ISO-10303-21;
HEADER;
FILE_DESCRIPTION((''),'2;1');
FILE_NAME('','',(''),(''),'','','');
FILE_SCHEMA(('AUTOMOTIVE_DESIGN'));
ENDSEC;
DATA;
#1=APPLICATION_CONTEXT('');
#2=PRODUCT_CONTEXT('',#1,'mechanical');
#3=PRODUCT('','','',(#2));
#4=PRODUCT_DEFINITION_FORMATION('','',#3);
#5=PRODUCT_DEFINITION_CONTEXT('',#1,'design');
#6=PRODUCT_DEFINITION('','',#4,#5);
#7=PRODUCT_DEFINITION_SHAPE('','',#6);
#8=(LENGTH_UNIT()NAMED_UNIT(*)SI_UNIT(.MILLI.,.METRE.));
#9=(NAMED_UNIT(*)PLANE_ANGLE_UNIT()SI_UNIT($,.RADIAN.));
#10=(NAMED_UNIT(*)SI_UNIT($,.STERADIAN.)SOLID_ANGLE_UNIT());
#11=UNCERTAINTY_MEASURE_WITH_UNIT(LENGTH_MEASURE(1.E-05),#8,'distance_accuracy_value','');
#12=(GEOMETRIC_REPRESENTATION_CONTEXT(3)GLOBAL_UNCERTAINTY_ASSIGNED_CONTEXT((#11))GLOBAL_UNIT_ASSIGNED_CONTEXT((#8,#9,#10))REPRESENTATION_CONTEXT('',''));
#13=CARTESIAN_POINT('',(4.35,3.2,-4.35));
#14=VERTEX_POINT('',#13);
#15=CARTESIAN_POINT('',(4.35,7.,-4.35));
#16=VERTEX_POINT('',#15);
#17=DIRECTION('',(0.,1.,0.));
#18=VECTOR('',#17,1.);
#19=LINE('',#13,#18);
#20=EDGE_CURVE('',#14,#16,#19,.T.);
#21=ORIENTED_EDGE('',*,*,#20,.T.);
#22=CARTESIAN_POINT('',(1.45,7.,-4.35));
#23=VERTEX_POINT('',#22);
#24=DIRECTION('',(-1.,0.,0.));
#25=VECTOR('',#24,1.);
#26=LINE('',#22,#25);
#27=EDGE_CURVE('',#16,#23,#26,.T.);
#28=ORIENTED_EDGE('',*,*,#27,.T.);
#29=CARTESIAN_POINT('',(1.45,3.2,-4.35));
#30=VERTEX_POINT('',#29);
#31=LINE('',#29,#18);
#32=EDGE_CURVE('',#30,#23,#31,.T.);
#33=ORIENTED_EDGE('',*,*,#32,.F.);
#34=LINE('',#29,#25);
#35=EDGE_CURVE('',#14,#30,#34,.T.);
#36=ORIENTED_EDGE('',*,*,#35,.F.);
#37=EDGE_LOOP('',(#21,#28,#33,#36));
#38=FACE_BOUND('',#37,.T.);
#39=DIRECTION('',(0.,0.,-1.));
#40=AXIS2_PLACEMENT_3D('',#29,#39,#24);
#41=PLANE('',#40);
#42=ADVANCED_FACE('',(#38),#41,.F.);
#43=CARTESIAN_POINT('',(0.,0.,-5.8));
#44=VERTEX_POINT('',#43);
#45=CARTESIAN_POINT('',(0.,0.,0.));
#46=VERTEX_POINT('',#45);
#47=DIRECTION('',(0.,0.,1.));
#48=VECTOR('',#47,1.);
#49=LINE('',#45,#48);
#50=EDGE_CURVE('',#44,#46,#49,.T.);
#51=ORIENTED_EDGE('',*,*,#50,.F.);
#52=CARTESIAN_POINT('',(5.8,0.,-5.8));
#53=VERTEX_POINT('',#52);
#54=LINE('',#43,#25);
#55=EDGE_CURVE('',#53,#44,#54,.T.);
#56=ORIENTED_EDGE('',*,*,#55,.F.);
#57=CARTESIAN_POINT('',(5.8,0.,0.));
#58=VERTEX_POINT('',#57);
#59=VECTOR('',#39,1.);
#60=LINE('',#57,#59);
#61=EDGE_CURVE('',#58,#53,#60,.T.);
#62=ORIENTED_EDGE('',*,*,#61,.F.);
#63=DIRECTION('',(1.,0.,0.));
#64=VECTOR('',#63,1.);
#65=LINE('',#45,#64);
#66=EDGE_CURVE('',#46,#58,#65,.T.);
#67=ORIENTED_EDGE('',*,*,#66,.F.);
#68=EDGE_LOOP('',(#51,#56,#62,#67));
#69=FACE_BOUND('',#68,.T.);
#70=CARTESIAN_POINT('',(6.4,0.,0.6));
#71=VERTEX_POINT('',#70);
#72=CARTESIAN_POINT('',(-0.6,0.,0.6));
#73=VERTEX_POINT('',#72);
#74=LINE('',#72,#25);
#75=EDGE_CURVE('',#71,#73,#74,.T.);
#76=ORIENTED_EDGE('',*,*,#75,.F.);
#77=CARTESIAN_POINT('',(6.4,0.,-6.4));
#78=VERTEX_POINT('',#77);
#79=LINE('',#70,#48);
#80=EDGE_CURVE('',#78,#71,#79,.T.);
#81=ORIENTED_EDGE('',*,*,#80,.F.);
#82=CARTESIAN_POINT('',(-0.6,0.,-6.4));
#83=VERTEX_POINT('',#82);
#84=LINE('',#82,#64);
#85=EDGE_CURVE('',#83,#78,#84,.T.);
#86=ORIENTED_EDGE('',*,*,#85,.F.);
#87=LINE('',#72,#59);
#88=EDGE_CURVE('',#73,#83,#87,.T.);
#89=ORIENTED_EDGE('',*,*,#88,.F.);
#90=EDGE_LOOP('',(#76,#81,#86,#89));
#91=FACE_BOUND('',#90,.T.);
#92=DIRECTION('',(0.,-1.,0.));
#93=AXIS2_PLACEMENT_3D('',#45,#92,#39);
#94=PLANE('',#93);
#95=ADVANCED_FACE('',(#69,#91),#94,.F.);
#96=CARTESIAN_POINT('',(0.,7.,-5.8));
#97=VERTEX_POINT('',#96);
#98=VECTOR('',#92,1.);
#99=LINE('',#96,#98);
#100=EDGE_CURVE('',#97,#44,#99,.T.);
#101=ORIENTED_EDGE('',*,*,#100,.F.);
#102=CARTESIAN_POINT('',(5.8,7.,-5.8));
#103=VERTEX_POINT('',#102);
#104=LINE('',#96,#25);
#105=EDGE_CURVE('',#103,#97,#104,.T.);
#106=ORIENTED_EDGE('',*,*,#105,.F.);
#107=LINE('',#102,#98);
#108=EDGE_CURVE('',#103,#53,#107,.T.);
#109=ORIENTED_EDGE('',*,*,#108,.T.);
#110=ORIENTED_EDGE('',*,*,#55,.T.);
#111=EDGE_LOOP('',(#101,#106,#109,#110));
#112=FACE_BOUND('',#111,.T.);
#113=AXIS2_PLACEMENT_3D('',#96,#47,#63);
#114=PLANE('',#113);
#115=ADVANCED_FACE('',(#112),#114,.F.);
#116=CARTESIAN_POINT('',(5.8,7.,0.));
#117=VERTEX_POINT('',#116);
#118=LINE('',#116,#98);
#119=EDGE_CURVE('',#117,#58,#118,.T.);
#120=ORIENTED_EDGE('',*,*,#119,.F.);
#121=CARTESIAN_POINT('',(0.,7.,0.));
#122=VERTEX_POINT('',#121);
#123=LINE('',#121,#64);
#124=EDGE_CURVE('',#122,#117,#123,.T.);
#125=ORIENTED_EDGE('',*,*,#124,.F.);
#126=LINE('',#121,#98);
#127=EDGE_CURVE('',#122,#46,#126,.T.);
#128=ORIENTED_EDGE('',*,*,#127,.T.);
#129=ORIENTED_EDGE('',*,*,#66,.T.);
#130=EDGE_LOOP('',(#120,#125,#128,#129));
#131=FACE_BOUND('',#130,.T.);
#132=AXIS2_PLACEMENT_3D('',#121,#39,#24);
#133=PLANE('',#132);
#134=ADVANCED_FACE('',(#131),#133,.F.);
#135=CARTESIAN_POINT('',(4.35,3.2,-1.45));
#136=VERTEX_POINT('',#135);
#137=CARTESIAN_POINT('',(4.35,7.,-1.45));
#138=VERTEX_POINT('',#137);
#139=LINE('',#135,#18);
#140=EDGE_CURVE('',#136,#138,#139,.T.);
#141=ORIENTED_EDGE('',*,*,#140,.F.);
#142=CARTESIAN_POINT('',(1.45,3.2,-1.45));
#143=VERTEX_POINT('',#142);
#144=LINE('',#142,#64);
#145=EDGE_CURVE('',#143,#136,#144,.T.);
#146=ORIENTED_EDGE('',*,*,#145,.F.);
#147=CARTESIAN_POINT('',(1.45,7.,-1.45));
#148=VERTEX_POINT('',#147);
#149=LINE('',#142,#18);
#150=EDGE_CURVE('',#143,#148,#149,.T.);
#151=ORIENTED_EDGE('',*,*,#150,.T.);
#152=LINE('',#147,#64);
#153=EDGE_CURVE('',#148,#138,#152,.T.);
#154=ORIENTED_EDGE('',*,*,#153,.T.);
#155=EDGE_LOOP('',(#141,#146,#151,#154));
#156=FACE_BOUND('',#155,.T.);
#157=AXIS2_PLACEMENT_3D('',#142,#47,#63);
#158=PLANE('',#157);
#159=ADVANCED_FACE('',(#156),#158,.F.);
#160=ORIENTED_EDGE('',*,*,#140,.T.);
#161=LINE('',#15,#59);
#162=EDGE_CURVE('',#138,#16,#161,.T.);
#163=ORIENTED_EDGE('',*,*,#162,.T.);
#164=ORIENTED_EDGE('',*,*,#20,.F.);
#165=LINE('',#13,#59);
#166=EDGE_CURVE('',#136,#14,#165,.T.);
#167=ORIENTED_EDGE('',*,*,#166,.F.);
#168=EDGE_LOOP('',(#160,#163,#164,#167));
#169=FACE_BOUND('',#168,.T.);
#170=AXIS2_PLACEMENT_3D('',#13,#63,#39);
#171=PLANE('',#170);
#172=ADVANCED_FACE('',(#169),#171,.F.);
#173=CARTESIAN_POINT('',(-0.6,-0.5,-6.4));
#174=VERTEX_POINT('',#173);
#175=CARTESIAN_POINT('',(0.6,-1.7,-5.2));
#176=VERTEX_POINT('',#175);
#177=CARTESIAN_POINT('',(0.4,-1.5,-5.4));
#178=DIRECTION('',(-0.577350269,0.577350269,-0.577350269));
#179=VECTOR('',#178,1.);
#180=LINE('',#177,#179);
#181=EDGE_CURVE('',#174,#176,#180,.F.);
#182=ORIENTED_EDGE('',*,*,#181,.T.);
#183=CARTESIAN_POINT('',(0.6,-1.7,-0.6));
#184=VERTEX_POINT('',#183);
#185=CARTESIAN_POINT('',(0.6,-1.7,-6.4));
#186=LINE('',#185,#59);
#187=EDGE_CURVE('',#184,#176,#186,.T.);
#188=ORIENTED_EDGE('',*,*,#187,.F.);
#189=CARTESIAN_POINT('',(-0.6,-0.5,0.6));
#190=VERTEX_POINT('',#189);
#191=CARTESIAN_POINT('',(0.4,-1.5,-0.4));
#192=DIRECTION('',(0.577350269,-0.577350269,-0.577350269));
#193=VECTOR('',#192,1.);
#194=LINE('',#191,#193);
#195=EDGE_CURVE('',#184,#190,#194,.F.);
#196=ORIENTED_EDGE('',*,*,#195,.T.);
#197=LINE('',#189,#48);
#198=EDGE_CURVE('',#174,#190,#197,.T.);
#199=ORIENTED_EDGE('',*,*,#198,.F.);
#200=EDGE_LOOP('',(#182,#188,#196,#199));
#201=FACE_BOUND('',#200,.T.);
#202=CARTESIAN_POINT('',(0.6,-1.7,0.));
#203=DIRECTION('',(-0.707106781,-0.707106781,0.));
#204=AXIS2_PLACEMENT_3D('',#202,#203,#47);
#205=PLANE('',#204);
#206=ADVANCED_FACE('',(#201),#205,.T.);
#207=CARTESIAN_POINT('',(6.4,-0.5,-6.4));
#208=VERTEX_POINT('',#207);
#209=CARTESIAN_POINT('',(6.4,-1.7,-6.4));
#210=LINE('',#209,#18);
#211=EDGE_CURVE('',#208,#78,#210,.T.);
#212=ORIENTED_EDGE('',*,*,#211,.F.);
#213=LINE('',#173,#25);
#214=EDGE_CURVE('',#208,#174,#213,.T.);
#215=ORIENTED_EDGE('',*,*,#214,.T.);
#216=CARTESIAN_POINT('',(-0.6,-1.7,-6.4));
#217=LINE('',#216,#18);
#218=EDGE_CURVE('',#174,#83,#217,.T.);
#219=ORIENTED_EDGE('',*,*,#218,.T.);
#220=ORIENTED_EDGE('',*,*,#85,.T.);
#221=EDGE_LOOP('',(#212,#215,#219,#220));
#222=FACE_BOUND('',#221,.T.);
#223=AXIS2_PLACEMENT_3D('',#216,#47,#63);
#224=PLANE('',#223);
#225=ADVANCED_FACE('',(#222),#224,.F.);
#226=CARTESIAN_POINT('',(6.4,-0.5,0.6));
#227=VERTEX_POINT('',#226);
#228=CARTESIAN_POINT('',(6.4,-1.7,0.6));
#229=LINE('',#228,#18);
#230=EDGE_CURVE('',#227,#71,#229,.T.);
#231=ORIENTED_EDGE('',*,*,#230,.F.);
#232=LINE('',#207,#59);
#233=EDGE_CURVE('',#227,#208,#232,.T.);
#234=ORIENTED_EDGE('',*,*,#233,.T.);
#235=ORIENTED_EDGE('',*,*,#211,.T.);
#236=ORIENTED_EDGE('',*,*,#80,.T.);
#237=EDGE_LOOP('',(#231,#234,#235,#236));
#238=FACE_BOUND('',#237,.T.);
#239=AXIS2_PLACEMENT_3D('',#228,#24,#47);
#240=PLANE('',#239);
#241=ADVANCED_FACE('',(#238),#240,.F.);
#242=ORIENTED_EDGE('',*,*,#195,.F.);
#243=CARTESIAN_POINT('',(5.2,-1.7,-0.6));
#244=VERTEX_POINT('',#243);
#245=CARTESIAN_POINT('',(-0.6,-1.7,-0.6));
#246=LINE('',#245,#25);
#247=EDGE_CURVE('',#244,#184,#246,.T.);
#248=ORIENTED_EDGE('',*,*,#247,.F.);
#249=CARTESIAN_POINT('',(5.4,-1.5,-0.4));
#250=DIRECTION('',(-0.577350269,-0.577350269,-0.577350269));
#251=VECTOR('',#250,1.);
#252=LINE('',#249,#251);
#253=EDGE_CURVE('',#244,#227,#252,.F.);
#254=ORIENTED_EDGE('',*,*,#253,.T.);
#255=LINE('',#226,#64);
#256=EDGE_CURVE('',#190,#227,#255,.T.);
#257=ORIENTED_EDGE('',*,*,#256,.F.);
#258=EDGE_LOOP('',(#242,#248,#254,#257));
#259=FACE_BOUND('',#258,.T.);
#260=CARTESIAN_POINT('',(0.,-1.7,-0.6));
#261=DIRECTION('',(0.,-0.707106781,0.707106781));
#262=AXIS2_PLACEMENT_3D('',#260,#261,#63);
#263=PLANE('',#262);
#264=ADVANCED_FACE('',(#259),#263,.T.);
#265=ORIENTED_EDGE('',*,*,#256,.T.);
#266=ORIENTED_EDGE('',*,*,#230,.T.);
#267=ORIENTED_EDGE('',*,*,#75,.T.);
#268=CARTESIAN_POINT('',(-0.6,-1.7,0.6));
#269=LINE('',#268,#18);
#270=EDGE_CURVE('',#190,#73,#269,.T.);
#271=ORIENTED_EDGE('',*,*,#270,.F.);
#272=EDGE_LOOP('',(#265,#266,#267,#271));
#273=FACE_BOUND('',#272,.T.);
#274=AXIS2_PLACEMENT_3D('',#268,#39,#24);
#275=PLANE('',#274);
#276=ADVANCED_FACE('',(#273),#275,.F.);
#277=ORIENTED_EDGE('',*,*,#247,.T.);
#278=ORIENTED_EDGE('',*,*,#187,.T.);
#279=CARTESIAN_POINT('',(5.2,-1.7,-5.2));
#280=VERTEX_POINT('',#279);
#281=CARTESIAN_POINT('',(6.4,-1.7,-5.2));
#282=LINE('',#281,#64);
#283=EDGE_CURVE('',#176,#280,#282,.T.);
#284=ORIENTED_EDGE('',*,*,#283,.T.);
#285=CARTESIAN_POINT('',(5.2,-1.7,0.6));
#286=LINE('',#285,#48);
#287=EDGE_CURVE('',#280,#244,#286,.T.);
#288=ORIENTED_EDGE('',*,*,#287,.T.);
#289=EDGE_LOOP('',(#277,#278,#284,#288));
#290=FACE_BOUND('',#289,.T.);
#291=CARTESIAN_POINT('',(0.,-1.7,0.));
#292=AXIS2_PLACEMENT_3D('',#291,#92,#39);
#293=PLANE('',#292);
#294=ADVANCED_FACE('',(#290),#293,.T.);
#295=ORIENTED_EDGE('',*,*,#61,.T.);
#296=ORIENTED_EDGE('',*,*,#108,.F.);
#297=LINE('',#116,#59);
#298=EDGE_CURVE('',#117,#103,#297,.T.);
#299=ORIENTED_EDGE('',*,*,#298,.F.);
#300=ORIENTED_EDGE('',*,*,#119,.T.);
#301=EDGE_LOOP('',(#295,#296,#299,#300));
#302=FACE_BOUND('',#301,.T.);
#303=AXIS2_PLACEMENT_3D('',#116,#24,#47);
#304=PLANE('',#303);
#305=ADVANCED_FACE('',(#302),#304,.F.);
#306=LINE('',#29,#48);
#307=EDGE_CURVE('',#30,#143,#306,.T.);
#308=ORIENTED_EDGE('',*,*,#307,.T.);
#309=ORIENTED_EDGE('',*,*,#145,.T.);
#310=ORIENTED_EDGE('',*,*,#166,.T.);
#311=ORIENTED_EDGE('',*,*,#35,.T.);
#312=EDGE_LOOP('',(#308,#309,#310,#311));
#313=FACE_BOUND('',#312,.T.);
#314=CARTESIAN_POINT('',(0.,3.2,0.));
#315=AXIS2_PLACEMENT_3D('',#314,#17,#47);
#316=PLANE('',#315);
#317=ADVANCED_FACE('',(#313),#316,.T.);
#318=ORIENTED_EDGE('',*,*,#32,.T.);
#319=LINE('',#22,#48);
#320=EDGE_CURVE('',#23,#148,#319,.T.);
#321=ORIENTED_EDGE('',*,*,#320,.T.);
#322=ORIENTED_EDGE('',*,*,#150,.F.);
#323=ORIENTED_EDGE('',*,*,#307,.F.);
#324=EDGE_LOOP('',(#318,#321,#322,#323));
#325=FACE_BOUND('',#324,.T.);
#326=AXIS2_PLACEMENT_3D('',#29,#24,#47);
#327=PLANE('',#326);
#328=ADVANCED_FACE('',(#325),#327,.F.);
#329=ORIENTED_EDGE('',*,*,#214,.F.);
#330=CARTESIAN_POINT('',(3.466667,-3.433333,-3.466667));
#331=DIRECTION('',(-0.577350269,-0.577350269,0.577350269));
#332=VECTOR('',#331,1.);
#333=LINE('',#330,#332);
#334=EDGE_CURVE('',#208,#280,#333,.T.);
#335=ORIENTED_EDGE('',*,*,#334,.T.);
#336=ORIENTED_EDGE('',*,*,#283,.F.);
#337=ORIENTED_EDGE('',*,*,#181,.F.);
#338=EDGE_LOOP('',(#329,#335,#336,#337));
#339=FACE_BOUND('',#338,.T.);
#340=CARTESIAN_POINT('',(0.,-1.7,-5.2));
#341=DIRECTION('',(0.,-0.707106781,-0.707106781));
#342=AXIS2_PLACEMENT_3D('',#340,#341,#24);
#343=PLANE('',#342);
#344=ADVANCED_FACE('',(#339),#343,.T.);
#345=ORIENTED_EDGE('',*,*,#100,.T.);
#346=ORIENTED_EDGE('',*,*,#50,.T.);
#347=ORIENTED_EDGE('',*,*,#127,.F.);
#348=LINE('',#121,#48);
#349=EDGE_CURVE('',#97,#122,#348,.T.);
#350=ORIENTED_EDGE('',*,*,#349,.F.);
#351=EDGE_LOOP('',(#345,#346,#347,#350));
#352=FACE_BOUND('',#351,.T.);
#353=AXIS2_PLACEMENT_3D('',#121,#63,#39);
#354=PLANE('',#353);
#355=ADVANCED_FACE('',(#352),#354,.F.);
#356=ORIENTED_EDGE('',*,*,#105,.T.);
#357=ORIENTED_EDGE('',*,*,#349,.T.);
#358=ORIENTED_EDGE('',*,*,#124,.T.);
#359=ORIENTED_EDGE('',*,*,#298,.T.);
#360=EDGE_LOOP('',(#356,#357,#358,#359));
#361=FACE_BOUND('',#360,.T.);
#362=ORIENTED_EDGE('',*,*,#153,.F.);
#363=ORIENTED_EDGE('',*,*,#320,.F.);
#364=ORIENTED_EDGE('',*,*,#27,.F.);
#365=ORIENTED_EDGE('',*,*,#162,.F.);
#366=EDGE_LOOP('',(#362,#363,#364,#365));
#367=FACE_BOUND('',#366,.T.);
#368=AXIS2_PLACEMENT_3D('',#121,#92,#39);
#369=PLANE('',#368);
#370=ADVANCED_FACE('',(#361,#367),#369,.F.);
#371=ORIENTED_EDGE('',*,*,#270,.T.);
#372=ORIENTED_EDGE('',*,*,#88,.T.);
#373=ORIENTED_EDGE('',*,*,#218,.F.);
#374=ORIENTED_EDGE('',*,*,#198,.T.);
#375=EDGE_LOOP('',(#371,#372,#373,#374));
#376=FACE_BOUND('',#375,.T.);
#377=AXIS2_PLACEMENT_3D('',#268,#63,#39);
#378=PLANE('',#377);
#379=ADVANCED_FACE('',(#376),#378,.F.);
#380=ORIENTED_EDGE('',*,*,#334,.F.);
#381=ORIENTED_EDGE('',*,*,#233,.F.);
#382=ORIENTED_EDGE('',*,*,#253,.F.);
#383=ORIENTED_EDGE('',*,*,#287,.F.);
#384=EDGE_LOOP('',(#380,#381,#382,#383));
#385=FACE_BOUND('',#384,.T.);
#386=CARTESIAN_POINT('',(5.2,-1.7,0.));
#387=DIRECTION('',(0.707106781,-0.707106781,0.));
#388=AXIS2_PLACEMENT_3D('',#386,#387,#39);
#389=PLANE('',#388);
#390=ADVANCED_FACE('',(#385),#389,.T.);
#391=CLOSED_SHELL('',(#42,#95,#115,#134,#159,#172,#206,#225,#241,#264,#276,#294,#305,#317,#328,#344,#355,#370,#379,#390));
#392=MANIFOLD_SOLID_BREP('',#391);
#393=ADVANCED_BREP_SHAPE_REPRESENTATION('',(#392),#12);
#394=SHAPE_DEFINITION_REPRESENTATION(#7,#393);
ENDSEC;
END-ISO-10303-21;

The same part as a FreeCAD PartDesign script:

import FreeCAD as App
import Part
import Sketcher
Q = App.Units.Quantity


def edges_at(feature, points):
    """Names of the edges that pass closest to the given points."""
    edges = feature.Shape.Edges
    near = lambda p: min(range(len(edges)), key=lambda i: edges[i].distToShape(Part.Vertex(*p))[0])
    return sorted({f"Edge{near(p) + 1}" for p in points})


def add_polygon(sketch, points):
    """Adds a closed chain of lines whose ends are joined by coincident constraints."""
    first, n = sketch.GeometryCount, len(points)
    for a, b in zip(points, points[1:] + points[:1]):
        sketch.addGeometry(Part.LineSegment(App.Vector(*a, 0), App.Vector(*b, 0)), False)
    for i in range(n):
        sketch.addConstraint(Sketcher.Constraint("Coincident", first + i, 2, first + (i + 1) % n, 1))

doc = App.newDocument("Part")
body = doc.addObject("PartDesign::Body", "Body")

# Sketch on XZ plane
sketch1 = body.newObject("Sketcher::SketchObject", "Sketch")
sketch1.AttachmentSupport = (doc.getObject("XZ_Plane"), [""])
sketch1.MapMode = "FlatFace"
add_polygon(sketch1, [(0, -6), (0, 0), (6, 0), (6, -6)])  # lines 0-3
sketch1.addConstraint([
    Sketcher.Constraint("Vertical", 0),
    Sketcher.Constraint("Horizontal", 1),
    Sketcher.Constraint("Vertical", 2),
    Sketcher.Constraint("Horizontal", 3),
    Sketcher.Constraint("Coincident", 0, 2, -1, 1),
    Sketcher.Constraint("Equal", 3, 0),
    Sketcher.Constraint("DistanceX", 1, 1, 1, 2, Q("5.8 mm")),
])
pad1 = body.newObject("PartDesign::Pad", "Pad")
pad1.Profile = sketch1
pad1.Length = 7
pad1.Reversed = True

# Sketch on XZ plane
sketch2 = body.newObject("Sketcher::SketchObject", "Sketch001")
sketch2.AttachmentSupport = (doc.getObject("XZ_Plane"), [""])
sketch2.MapMode = "FlatFace"
sketch2.AttachmentOffset = App.Placement(App.Vector(0, 0, -7), App.Rotation())
add_polygon(sketch2, [(1.4, -4.3), (1.4, -1.4), (4.3, -1.4), (4.3, -4.3)])  # lines 0-3
sketch2.addConstraint([
    Sketcher.Constraint("Vertical", 0),
    Sketcher.Constraint("Horizontal", 1),
    Sketcher.Constraint("Vertical", 2),
    Sketcher.Constraint("Horizontal", 3),
    Sketcher.Constraint("Equal", 3, 0),
    Sketcher.Constraint("DistanceX", 1, 1, 1, 2, Q("2.9 mm")),
    Sketcher.Constraint("DistanceX", -1, 1, 0, 2, Q("1.45 mm")),
    Sketcher.Constraint("DistanceY", 0, 2, -1, 1, Q("1.45 mm")),
])
pocket1 = body.newObject("PartDesign::Pocket", "Pocket")
pocket1.Profile = sketch2
pocket1.Length = 3.8
pocket1.Reversed = True

# Sketch on XZ plane
sketch3 = body.newObject("Sketcher::SketchObject", "Sketch002")
sketch3.AttachmentSupport = (doc.getObject("XZ_Plane"), [""])
sketch3.MapMode = "FlatFace"
add_polygon(sketch3, [(-1, 1), (-1, -6), (6, -6), (6, 1)])  # lines 0-3
sketch3.addConstraint([
    Sketcher.Constraint("Vertical", 0),
    Sketcher.Constraint("Horizontal", 1),
    Sketcher.Constraint("Vertical", 2),
    Sketcher.Constraint("Horizontal", 3),
    Sketcher.Constraint("Equal", 3, 0),
    Sketcher.Constraint("DistanceX", 1, 1, 1, 2, Q("7 mm")),
    Sketcher.Constraint("DistanceX", 0, 2, -1, 1, Q("0.6 mm")),
    Sketcher.Constraint("DistanceY", 0, 2, -1, 1, Q("6.4 mm")),
])
pad2 = body.newObject("PartDesign::Pad", "Pad001")
pad2.Profile = sketch3
pad2.Length = 1.7
doc.recompute()

chamfer = body.newObject("PartDesign::Chamfer", "Chamfer")
chamfer.Base = (pad2, edges_at(pad2, [
    (-0.6, -1.7, -2.9),
    (2.9, -1.7, -6.4),
    (6.4, -1.7, -2.9),
    (2.9, -1.7, 0.6),
]))
chamfer.Size = 1.2

doc.recompute()
